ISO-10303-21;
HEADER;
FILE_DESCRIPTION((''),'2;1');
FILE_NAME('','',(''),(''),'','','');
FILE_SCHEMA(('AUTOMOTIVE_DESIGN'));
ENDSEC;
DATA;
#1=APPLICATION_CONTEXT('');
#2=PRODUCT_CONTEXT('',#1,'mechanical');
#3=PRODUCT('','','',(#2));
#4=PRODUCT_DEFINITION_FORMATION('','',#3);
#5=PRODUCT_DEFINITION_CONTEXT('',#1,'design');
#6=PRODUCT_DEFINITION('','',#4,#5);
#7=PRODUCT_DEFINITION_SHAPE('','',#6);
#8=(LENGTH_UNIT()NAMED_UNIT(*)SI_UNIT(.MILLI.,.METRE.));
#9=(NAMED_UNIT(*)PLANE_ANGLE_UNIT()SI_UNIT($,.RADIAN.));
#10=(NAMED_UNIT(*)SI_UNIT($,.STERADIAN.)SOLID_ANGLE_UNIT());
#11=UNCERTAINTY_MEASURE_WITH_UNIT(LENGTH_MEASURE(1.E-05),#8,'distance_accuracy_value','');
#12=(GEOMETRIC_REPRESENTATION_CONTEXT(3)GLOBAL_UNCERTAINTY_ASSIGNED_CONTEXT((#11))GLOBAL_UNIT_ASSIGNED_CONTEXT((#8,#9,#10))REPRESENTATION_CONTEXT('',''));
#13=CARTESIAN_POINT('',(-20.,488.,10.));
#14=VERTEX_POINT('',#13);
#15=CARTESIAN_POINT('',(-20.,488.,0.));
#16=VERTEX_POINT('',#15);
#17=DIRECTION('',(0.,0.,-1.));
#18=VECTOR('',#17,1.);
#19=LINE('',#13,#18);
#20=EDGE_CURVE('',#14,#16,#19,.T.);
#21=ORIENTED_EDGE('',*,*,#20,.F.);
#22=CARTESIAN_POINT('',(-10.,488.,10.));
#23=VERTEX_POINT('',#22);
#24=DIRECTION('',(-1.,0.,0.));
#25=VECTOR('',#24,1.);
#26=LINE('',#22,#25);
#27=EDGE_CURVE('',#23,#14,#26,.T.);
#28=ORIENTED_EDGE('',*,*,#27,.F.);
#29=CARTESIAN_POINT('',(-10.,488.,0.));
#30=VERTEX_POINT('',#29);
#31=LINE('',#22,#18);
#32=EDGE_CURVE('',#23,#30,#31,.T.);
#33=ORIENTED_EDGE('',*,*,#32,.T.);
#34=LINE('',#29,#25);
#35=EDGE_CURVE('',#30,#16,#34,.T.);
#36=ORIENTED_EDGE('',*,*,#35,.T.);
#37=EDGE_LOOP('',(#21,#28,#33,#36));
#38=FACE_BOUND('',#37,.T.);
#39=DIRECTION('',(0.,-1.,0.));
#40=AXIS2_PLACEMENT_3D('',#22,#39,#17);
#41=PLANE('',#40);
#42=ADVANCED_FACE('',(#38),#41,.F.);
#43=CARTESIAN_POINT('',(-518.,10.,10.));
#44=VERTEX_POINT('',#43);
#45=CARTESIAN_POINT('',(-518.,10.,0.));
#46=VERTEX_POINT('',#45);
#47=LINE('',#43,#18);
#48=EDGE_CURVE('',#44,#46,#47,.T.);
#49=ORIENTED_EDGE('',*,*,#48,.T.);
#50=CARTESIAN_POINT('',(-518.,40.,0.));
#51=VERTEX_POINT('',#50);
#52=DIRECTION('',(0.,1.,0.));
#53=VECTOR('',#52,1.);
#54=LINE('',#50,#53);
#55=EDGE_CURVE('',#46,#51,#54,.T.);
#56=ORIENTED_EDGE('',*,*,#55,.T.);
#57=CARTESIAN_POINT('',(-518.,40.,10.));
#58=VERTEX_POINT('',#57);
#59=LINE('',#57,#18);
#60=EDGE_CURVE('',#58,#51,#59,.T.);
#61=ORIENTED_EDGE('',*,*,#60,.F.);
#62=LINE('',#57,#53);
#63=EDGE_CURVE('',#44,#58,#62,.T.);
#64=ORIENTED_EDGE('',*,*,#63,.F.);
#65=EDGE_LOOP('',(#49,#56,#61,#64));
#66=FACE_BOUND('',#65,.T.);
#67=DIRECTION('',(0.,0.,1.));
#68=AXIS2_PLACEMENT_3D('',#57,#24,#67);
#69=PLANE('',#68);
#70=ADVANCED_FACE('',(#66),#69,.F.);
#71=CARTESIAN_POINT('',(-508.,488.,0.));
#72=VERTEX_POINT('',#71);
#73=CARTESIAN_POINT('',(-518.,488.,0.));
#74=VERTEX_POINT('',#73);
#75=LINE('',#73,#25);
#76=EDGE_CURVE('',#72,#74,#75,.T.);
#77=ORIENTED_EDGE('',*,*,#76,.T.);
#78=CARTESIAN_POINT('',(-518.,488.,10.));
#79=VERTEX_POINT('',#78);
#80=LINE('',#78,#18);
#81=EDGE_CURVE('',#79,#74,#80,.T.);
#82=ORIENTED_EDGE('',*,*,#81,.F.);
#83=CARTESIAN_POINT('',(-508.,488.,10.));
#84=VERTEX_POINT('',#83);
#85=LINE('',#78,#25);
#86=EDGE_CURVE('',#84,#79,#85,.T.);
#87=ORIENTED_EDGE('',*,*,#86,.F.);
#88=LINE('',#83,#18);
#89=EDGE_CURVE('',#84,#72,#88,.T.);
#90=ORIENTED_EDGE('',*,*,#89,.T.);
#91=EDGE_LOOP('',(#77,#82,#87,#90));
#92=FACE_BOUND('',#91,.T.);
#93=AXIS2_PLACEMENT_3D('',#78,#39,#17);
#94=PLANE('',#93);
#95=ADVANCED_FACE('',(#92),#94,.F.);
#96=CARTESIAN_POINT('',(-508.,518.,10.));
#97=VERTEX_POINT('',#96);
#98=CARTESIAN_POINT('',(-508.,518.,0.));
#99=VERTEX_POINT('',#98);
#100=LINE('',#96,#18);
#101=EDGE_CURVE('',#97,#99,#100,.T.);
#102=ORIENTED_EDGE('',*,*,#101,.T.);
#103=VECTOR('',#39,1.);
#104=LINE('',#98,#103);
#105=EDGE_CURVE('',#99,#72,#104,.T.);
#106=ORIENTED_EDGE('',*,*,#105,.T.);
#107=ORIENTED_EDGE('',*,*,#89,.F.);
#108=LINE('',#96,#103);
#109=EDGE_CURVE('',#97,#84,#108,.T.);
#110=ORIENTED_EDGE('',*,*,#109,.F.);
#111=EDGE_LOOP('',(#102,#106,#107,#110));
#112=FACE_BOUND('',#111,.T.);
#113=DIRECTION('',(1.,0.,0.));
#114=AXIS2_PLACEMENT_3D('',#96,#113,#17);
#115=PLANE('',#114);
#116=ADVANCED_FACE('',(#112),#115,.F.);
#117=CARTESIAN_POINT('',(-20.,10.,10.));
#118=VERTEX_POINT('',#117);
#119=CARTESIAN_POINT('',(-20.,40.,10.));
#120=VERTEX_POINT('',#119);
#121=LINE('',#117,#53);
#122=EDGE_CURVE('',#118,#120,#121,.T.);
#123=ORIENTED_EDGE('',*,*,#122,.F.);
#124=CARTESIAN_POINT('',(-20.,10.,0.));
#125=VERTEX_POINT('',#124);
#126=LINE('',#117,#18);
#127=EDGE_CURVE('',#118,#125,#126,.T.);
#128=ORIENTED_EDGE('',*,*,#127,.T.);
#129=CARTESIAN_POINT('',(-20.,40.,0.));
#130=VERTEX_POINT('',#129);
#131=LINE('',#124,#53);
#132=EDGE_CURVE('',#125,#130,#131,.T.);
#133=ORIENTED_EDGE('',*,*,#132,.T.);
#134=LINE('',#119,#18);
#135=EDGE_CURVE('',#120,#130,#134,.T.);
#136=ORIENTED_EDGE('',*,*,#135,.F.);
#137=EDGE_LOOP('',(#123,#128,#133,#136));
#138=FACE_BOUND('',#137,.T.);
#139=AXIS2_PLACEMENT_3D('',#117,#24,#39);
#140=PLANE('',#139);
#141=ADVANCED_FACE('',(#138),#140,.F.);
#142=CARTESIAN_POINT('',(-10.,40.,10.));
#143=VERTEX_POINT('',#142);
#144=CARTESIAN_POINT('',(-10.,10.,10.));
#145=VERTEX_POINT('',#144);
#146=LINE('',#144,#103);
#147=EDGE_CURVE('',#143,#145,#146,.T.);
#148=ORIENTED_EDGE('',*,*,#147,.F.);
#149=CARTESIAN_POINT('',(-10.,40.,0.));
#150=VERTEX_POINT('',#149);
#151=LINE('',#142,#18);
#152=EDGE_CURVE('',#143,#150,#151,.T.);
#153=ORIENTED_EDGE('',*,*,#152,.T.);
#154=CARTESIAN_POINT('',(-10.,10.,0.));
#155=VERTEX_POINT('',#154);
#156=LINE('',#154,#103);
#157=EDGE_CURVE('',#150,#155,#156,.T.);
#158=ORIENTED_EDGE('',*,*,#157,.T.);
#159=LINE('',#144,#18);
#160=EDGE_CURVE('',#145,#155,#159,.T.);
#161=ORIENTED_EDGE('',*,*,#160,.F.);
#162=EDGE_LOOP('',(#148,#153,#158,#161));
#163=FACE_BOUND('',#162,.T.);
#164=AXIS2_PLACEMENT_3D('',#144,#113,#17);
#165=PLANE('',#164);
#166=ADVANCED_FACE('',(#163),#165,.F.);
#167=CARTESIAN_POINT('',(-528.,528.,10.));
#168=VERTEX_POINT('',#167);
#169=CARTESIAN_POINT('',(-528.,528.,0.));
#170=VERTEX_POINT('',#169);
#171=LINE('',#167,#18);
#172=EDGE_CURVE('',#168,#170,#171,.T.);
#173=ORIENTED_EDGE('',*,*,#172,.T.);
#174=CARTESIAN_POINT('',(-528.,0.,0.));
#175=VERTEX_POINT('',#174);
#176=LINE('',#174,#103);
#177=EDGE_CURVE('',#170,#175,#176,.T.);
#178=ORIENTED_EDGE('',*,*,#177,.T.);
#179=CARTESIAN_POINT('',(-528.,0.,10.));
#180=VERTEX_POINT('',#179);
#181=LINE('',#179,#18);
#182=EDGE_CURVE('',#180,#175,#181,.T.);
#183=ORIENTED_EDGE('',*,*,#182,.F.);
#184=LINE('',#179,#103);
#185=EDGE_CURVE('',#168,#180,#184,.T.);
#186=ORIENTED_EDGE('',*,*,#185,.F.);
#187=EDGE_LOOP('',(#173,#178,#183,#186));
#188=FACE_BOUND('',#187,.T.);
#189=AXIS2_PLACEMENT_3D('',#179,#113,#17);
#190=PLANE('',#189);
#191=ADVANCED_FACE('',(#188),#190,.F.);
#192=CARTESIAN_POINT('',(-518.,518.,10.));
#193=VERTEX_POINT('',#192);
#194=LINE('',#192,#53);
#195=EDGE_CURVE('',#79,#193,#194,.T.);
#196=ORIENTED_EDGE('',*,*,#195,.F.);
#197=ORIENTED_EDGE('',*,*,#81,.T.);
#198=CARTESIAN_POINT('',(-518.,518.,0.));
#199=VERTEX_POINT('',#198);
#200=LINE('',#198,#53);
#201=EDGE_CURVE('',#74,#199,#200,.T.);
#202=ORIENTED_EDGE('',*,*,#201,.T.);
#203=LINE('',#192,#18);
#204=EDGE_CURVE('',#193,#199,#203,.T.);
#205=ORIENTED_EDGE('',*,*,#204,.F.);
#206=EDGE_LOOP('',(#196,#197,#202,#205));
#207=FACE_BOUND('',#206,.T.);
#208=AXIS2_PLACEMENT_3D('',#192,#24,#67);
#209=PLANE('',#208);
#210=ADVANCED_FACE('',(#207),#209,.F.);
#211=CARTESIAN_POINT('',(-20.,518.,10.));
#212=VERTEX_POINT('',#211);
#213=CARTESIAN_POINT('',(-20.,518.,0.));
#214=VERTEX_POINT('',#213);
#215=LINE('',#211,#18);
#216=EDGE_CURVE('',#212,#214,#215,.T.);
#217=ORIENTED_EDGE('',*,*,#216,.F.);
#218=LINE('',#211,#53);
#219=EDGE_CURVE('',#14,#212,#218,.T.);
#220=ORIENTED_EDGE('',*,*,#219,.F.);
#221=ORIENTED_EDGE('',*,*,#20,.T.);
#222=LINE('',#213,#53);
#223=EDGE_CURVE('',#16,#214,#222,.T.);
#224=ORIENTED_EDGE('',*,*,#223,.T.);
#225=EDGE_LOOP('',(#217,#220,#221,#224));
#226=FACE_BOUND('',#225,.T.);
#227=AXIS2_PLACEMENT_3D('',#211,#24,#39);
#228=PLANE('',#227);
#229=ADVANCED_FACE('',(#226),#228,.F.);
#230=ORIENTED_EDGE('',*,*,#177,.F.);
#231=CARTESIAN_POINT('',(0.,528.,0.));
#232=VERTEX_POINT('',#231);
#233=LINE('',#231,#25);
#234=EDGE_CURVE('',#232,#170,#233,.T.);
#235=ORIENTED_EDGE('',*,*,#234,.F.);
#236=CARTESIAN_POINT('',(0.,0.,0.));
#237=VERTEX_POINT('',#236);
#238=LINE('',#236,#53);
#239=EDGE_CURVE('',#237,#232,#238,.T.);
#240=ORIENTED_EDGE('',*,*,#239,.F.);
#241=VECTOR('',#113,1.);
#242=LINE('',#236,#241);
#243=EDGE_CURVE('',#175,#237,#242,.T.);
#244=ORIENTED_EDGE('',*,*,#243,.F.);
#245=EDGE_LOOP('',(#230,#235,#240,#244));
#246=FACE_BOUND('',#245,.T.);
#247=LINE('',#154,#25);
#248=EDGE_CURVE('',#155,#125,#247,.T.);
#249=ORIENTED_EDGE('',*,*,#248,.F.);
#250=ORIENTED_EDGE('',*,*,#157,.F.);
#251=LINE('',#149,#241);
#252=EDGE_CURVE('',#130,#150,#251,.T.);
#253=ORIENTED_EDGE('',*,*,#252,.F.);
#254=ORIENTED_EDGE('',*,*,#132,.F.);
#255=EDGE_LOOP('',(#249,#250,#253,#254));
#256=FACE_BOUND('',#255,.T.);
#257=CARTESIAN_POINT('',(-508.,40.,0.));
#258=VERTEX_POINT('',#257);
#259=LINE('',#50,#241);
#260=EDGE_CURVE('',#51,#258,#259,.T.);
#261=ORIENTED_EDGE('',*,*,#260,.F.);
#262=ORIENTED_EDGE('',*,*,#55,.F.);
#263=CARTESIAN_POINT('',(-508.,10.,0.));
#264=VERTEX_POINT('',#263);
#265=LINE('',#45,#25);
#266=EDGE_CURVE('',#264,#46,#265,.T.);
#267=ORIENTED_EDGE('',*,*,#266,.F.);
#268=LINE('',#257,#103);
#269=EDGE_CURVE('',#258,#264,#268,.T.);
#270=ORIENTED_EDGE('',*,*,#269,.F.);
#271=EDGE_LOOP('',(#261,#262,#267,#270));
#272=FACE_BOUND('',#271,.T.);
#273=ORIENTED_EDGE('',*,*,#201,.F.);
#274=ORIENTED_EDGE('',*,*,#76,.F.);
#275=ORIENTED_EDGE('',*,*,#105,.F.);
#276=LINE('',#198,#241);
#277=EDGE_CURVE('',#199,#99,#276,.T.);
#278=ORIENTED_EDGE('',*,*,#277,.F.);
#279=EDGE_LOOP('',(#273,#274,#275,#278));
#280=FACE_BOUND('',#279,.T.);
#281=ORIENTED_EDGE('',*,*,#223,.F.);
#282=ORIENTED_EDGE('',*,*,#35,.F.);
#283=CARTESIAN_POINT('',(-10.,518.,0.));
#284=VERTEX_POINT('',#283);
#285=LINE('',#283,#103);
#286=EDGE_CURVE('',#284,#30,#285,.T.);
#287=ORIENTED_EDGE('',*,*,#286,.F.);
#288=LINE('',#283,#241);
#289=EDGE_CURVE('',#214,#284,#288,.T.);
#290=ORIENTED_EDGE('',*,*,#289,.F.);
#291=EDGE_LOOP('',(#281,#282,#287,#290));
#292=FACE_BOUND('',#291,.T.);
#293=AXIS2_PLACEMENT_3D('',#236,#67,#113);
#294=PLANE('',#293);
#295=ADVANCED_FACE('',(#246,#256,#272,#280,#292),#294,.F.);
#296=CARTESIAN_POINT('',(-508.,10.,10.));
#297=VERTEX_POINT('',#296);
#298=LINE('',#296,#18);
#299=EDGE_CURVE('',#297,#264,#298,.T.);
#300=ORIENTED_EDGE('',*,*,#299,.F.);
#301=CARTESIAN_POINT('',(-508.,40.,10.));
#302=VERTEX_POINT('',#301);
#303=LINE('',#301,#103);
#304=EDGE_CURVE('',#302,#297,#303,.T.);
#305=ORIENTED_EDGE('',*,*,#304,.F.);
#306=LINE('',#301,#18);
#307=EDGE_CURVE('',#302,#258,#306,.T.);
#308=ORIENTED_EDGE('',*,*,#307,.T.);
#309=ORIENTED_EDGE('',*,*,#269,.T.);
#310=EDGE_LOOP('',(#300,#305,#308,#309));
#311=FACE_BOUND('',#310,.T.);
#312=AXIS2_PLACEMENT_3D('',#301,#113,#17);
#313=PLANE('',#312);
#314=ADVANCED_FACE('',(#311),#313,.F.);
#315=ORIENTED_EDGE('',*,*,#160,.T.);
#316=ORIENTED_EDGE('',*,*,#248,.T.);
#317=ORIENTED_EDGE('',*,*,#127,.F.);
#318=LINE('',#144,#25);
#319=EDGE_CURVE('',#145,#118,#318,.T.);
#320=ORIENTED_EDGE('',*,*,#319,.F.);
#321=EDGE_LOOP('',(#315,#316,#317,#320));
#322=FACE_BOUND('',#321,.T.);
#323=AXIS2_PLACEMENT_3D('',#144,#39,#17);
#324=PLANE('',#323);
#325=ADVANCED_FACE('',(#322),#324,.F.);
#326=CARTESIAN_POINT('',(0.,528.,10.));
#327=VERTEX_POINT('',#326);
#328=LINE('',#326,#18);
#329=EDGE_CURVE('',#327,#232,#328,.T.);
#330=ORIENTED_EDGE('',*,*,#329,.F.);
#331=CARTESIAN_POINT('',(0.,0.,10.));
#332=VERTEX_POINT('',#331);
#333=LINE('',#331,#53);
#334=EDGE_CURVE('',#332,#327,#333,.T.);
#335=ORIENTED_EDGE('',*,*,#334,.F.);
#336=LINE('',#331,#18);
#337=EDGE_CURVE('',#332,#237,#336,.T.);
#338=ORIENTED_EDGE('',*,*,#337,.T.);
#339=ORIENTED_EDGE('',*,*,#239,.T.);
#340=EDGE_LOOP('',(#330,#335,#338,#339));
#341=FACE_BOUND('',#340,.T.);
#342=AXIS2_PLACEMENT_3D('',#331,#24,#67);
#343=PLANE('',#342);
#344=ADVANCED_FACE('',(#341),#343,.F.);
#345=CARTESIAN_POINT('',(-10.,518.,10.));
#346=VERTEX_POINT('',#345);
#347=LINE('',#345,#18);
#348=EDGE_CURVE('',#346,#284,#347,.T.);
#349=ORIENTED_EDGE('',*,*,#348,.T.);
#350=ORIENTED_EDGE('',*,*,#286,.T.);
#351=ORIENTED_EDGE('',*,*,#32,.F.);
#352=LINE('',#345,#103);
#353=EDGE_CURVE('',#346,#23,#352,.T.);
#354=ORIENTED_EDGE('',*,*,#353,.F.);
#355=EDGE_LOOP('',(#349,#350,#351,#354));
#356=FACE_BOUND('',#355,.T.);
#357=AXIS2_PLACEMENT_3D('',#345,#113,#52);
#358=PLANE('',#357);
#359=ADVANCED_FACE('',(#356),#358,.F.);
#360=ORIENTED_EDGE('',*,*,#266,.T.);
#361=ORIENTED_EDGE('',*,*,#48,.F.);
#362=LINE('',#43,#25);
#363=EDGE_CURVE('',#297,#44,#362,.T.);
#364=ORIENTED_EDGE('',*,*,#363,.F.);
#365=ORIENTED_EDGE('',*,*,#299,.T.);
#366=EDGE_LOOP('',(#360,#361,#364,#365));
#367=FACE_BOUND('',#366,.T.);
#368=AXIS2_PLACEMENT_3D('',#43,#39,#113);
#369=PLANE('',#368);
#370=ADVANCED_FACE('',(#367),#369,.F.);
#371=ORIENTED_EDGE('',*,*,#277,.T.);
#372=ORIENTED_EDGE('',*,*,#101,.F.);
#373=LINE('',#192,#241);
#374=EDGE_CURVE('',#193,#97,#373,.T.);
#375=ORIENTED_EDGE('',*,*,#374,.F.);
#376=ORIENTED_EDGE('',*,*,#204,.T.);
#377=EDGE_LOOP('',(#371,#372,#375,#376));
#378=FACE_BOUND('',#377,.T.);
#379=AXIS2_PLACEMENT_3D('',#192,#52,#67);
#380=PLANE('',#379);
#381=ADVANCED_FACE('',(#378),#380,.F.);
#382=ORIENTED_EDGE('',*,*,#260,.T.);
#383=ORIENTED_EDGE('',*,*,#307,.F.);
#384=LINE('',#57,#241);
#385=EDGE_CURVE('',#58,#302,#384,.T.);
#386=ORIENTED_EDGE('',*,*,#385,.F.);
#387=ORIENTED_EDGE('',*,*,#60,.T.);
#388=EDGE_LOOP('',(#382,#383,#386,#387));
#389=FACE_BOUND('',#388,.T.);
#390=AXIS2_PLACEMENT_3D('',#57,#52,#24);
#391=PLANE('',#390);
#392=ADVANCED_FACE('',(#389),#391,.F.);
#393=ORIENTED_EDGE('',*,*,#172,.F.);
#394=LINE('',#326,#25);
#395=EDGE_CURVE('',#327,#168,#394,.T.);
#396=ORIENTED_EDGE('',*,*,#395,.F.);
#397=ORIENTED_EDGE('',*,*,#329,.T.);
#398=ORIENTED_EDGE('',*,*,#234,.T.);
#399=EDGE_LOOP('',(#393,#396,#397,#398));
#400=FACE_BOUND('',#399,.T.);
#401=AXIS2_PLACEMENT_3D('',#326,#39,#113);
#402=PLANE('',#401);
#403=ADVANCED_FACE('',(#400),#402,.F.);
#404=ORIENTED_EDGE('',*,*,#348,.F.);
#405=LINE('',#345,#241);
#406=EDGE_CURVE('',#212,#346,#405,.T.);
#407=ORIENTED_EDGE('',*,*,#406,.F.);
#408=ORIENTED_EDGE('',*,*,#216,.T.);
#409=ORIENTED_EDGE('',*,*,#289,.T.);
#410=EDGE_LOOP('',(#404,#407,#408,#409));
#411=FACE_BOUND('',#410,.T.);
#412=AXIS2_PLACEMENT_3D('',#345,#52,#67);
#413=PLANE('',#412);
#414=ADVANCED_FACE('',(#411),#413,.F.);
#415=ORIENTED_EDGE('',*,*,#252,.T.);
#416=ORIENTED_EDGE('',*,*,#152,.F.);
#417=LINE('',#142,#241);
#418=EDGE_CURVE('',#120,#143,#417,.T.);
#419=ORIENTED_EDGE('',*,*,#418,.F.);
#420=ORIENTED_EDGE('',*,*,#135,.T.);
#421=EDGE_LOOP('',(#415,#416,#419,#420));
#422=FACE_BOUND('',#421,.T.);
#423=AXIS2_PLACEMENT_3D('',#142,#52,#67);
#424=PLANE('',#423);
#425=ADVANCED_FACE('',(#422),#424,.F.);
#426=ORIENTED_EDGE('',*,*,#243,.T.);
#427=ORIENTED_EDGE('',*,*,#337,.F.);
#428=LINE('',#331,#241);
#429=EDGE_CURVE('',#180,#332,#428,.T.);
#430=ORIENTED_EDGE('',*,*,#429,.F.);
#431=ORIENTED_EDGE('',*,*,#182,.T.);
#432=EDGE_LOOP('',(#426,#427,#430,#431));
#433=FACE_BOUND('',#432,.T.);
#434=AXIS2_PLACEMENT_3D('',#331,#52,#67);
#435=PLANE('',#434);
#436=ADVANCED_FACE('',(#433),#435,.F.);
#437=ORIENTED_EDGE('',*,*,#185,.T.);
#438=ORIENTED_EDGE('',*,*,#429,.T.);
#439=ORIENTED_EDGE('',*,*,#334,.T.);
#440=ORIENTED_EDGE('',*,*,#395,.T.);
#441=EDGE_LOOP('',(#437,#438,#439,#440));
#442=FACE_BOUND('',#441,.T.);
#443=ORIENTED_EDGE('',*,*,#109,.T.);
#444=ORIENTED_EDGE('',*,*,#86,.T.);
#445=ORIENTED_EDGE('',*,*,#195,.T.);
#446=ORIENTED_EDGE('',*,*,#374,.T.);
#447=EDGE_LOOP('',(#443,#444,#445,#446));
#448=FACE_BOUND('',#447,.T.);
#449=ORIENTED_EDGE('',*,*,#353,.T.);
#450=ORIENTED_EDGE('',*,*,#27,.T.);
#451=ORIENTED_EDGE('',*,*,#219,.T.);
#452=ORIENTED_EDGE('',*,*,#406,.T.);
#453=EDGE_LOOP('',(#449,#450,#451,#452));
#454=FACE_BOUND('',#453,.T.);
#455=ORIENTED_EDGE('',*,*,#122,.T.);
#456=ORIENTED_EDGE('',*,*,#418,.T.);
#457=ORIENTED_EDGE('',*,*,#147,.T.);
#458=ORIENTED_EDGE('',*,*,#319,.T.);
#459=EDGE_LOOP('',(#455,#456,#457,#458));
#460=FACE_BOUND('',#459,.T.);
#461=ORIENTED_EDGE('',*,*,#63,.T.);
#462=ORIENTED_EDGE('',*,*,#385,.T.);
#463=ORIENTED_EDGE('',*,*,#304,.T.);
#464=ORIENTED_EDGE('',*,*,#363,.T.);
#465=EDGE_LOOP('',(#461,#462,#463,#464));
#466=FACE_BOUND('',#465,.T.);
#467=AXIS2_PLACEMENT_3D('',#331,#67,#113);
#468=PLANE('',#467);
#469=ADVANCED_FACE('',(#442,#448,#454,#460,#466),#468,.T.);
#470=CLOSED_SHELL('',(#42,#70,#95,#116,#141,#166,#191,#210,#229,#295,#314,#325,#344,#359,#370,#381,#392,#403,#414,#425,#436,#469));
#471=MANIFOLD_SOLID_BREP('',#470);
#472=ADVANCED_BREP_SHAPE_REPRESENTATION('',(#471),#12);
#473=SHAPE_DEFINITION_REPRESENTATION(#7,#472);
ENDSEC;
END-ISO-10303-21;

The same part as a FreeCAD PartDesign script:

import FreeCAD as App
import Part
import Sketcher

V = App.Vector

doc = App.newDocument("Part")
params = doc.addObject("Spreadsheet::Sheet", "Params")
for row, (alias, value) in enumerate([
    ("sketch1_width", "528 mm"),
    ("pad1_length", "10 mm"),
    ("sketch2_width", "10 mm"),
    ("sketch2_height", "30 mm"),
    ("pocket1_length", "10 mm"),
], start=1):
    params.set(f"A{row}", alias)
    params.set(f"B{row}", "=" + value)
    params.setAlias(f"B{row}", alias)

body = doc.addObject("PartDesign::Body", "Body")

# Sketch on XY plane
sketch1 = doc.addObject("Sketcher::SketchObject", "Sketch")
body.addObject(sketch1)
sketch1.AttachmentSupport = (doc.XY_Plane, [""])
sketch1.MapMode = "FlatFace"
sketch1.addGeometry([
    Part.LineSegment(V(-528, 528, 0), V(-528, 0, 0)),
    Part.LineSegment(V(-528, 0, 0), V(0, 0, 0)),
    Part.LineSegment(V(0, 0, 0), V(0, 528, 0)),
    Part.LineSegment(V(0, 528, 0), V(-528, 528, 0)),
], False)
sketch1.addConstraint([
    Sketcher.Constraint("Coincident", 0, 2, 1, 1),
    Sketcher.Constraint("Coincident", 1, 2, 2, 1),
    Sketcher.Constraint("Coincident", 2, 2, 3, 1),
    Sketcher.Constraint("Coincident", 3, 2, 0, 1),
    Sketcher.Constraint("Vertical", 0),
    Sketcher.Constraint("Horizontal", 1),
    Sketcher.Constraint("Vertical", 2),
    Sketcher.Constraint("Horizontal", 3),
    Sketcher.Constraint("Coincident", 1, 2, -1, 1),
    Sketcher.Constraint("Equal", 3, 0),
    Sketcher.Constraint("DistanceX", 1, 1, 1, 2, 528.0),
])
sketch1.setExpression("Constraints[10]", "Params.sketch1_width")
pad1 = doc.addObject("PartDesign::Pad", "Pad")
body.addObject(pad1)
pad1.Profile = sketch1
pad1.setExpression("Length", "Params.pad1_length")

# Sketch on XY plane
sketch2 = doc.addObject("Sketcher::SketchObject", "Sketch001")
body.addObject(sketch2)
sketch2.AttachmentSupport = (doc.XY_Plane, [""])
sketch2.MapMode = "FlatFace"
sketch2.addGeometry([
    Part.LineSegment(V(-508, 518, 0), V(-508, 488, 0)),  # 0
    Part.LineSegment(V(-508, 488, 0), V(-518, 488, 0)),  # 1
    Part.LineSegment(V(-518, 488, 0), V(-518, 518, 0)),  # 2
    Part.LineSegment(V(-518, 518, 0), V(-508, 518, 0)),  # 3
    Part.LineSegment(V(-508, 40, 0), V(-508, 10, 0)),  # 4
    Part.LineSegment(V(-508, 10, 0), V(-518, 10, 0)),  # 5
    Part.LineSegment(V(-518, 10, 0), V(-518, 40, 0)),  # 6
    Part.LineSegment(V(-518, 40, 0), V(-508, 40, 0)),  # 7
    Part.LineSegment(V(-10, 40, 0), V(-10, 10, 0)),  # 8
    Part.LineSegment(V(-10, 10, 0), V(-20, 10, 0)),  # 9
    Part.LineSegment(V(-20, 10, 0), V(-20, 40, 0)),  # 10
    Part.LineSegment(V(-20, 40, 0), V(-10, 40, 0)),  # 11
    Part.LineSegment(V(-10, 518, 0), V(-10, 488, 0)),  # 12
    Part.LineSegment(V(-10, 488, 0), V(-20, 488, 0)),  # 13
    Part.LineSegment(V(-20, 488, 0), V(-20, 518, 0)),  # 14
    Part.LineSegment(V(-20, 518, 0), V(-10, 518, 0)),  # 15
], False)
sketch2.addConstraint([
    Sketcher.Constraint("Coincident", 0, 2, 1, 1),
    Sketcher.Constraint("Coincident", 1, 2, 2, 1),
    Sketcher.Constraint("Coincident", 2, 2, 3, 1),
    Sketcher.Constraint("Coincident", 3, 2, 0, 1),
    Sketcher.Constraint("Coincident", 4, 2, 5, 1),
    Sketcher.Constraint("Coincident", 5, 2, 6, 1),
    Sketcher.Constraint("Coincident", 6, 2, 7, 1),
    Sketcher.Constraint("Coincident", 7, 2, 4, 1),
    Sketcher.Constraint("Coincident", 8, 2, 9, 1),
    Sketcher.Constraint("Coincident", 9, 2, 10, 1),
    Sketcher.Constraint("Coincident", 10, 2, 11, 1),
    Sketcher.Constraint("Coincident", 11, 2, 8, 1),
    Sketcher.Constraint("Coincident", 12, 2, 13, 1),
    Sketcher.Constraint("Coincident", 13, 2, 14, 1),
    Sketcher.Constraint("Coincident", 14, 2, 15, 1),
    Sketcher.Constraint("Coincident", 15, 2, 12, 1),
    Sketcher.Constraint("Vertical", 0),
    Sketcher.Constraint("Horizontal", 1),
    Sketcher.Constraint("Vertical", 2),
    Sketcher.Constraint("Horizontal", 3),
    Sketcher.Constraint("Vertical", 4),
    Sketcher.Constraint("Horizontal", 5),
    Sketcher.Constraint("Vertical", 6),
    Sketcher.Constraint("Horizontal", 7),
    Sketcher.Constraint("Vertical", 8),
    Sketcher.Constraint("Horizontal", 9),
    Sketcher.Constraint("Vertical", 10),
    Sketcher.Constraint("Horizontal", 11),
    Sketcher.Constraint("Vertical", 12),
    Sketcher.Constraint("Horizontal", 13),
    Sketcher.Constraint("Vertical", 14),
    Sketcher.Constraint("Horizontal", 15),
    Sketcher.Constraint("Horizontal", 5, 2, 8, 2),
    Sketcher.Constraint("Horizontal", 7, 2, 10, 2),
    Sketcher.Constraint("Horizontal", 1, 2, 12, 2),
    Sketcher.Constraint("Horizontal", 3, 2, 14, 2),
    Sketcher.Constraint("Vertical", 3, 2, 4, 2),
    Sketcher.Constraint("Vertical", 2, 2, 5, 2),
    Sketcher.Constraint("Vertical", 11, 2, 12, 2),
    Sketcher.Constraint("Vertical", 10, 2, 13, 2),
    Sketcher.Constraint("Equal", 7, 9),
    Sketcher.Constraint("Equal", 2, 4),
    Sketcher.Constraint("DistanceX", 1, 2, 1, 1, 10.0),
    Sketcher.Constraint("DistanceY", 0, 2, 0, 1, 30.0),
    Sketcher.Constraint("DistanceX", 0, 2, -1, 1, 508.0),
    Sketcher.Constraint("DistanceY", -1, 1, 0, 2, 488.0),
    Sketcher.Constraint("DistanceY", -1, 1, 4, 2, 10.0),
    Sketcher.Constraint("DistanceX", 8, 2, -1, 1, 10.0),
])
sketch2.setExpression("Constraints[42]", "Params.sketch2_width")
sketch2.setExpression("Constraints[43]", "Params.sketch2_height")
pocket1 = doc.addObject("PartDesign::Pocket", "Pocket")
body.addObject(pocket1)
pocket1.Profile = sketch2
pocket1.setExpression("Length", "Params.pocket1_length")
pocket1.Reversed = True

doc.recompute()
